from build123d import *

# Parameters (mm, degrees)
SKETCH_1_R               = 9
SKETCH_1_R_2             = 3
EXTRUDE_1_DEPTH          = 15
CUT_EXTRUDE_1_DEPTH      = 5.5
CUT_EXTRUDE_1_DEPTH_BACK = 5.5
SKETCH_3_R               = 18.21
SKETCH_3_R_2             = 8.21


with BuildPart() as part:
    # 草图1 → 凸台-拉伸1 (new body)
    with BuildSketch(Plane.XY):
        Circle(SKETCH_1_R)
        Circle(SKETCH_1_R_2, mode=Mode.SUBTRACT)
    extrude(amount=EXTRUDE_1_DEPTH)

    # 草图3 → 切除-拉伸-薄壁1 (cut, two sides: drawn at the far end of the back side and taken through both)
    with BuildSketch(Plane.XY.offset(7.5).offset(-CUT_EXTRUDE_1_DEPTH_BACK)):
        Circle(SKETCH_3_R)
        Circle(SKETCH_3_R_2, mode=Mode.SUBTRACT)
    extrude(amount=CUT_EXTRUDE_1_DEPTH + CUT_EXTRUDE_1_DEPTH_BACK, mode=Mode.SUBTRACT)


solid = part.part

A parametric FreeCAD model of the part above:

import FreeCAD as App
import Part
import Sketcher
Q = App.Units.Quantity

doc = App.newDocument("Part")
body = doc.addObject("PartDesign::Body", "Body")

sketch1 = doc.addObject("Sketcher::SketchObject", "Sketch")
body.addObject(sketch1)
sketch1.AttachmentSupport = (doc.XY_Plane, [""])
sketch1.MapMode = "FlatFace"
sketch1.addGeometry([
    Part.Circle(App.Vector(0, 0, 0), App.Vector(0, 0, 1), 9),
    Part.Circle(App.Vector(0, 0, 0), App.Vector(0, 0, 1), 3),
], False)
sketch1.addConstraint([
    Sketcher.Constraint("Coincident", 0, 3, -1, 1),
    Sketcher.Constraint("Coincident", 1, 3, -1, 1),
    Sketcher.Constraint("Diameter", 0, Q("18 mm")),
    Sketcher.Constraint("Diameter", 1, Q("6 mm")),
])
pad1 = doc.addObject("PartDesign::Pad", "Pad")
body.addObject(pad1)
pad1.Profile = sketch1
pad1.Length = 15

sketch2 = doc.addObject("Sketcher::SketchObject", "Sketch001")
body.addObject(sketch2)
sketch2.AttachmentSupport = (doc.XY_Plane, [""])
sketch2.MapMode = "FlatFace"
sketch2.AttachmentOffset = App.Placement(App.Vector(0, 0, 7.5), App.Rotation())
sketch2.addGeometry([
    Part.Circle(App.Vector(0, 0, 0), App.Vector(0, 0, 1), 18),
    Part.Circle(App.Vector(0, 0, 0), App.Vector(0, 0, 1), 8),
], False)
sketch2.addConstraint([
    Sketcher.Constraint("Coincident", 0, 3, -1, 1),
    Sketcher.Constraint("Coincident", 1, 3, -1, 1),
    Sketcher.Constraint("Diameter", 0, Q("36.42 mm")),
    Sketcher.Constraint("Diameter", 1, Q("16.42 mm")),
])
pocket1 = doc.addObject("PartDesign::Pocket", "Pocket")
body.addObject(pocket1)
pocket1.Profile = sketch2
pocket1.Type = "TwoLengths"
pocket1.Length = 5.5
pocket1.Length2 = 5.5
pocket1.Reversed = True

doc.recompute()
